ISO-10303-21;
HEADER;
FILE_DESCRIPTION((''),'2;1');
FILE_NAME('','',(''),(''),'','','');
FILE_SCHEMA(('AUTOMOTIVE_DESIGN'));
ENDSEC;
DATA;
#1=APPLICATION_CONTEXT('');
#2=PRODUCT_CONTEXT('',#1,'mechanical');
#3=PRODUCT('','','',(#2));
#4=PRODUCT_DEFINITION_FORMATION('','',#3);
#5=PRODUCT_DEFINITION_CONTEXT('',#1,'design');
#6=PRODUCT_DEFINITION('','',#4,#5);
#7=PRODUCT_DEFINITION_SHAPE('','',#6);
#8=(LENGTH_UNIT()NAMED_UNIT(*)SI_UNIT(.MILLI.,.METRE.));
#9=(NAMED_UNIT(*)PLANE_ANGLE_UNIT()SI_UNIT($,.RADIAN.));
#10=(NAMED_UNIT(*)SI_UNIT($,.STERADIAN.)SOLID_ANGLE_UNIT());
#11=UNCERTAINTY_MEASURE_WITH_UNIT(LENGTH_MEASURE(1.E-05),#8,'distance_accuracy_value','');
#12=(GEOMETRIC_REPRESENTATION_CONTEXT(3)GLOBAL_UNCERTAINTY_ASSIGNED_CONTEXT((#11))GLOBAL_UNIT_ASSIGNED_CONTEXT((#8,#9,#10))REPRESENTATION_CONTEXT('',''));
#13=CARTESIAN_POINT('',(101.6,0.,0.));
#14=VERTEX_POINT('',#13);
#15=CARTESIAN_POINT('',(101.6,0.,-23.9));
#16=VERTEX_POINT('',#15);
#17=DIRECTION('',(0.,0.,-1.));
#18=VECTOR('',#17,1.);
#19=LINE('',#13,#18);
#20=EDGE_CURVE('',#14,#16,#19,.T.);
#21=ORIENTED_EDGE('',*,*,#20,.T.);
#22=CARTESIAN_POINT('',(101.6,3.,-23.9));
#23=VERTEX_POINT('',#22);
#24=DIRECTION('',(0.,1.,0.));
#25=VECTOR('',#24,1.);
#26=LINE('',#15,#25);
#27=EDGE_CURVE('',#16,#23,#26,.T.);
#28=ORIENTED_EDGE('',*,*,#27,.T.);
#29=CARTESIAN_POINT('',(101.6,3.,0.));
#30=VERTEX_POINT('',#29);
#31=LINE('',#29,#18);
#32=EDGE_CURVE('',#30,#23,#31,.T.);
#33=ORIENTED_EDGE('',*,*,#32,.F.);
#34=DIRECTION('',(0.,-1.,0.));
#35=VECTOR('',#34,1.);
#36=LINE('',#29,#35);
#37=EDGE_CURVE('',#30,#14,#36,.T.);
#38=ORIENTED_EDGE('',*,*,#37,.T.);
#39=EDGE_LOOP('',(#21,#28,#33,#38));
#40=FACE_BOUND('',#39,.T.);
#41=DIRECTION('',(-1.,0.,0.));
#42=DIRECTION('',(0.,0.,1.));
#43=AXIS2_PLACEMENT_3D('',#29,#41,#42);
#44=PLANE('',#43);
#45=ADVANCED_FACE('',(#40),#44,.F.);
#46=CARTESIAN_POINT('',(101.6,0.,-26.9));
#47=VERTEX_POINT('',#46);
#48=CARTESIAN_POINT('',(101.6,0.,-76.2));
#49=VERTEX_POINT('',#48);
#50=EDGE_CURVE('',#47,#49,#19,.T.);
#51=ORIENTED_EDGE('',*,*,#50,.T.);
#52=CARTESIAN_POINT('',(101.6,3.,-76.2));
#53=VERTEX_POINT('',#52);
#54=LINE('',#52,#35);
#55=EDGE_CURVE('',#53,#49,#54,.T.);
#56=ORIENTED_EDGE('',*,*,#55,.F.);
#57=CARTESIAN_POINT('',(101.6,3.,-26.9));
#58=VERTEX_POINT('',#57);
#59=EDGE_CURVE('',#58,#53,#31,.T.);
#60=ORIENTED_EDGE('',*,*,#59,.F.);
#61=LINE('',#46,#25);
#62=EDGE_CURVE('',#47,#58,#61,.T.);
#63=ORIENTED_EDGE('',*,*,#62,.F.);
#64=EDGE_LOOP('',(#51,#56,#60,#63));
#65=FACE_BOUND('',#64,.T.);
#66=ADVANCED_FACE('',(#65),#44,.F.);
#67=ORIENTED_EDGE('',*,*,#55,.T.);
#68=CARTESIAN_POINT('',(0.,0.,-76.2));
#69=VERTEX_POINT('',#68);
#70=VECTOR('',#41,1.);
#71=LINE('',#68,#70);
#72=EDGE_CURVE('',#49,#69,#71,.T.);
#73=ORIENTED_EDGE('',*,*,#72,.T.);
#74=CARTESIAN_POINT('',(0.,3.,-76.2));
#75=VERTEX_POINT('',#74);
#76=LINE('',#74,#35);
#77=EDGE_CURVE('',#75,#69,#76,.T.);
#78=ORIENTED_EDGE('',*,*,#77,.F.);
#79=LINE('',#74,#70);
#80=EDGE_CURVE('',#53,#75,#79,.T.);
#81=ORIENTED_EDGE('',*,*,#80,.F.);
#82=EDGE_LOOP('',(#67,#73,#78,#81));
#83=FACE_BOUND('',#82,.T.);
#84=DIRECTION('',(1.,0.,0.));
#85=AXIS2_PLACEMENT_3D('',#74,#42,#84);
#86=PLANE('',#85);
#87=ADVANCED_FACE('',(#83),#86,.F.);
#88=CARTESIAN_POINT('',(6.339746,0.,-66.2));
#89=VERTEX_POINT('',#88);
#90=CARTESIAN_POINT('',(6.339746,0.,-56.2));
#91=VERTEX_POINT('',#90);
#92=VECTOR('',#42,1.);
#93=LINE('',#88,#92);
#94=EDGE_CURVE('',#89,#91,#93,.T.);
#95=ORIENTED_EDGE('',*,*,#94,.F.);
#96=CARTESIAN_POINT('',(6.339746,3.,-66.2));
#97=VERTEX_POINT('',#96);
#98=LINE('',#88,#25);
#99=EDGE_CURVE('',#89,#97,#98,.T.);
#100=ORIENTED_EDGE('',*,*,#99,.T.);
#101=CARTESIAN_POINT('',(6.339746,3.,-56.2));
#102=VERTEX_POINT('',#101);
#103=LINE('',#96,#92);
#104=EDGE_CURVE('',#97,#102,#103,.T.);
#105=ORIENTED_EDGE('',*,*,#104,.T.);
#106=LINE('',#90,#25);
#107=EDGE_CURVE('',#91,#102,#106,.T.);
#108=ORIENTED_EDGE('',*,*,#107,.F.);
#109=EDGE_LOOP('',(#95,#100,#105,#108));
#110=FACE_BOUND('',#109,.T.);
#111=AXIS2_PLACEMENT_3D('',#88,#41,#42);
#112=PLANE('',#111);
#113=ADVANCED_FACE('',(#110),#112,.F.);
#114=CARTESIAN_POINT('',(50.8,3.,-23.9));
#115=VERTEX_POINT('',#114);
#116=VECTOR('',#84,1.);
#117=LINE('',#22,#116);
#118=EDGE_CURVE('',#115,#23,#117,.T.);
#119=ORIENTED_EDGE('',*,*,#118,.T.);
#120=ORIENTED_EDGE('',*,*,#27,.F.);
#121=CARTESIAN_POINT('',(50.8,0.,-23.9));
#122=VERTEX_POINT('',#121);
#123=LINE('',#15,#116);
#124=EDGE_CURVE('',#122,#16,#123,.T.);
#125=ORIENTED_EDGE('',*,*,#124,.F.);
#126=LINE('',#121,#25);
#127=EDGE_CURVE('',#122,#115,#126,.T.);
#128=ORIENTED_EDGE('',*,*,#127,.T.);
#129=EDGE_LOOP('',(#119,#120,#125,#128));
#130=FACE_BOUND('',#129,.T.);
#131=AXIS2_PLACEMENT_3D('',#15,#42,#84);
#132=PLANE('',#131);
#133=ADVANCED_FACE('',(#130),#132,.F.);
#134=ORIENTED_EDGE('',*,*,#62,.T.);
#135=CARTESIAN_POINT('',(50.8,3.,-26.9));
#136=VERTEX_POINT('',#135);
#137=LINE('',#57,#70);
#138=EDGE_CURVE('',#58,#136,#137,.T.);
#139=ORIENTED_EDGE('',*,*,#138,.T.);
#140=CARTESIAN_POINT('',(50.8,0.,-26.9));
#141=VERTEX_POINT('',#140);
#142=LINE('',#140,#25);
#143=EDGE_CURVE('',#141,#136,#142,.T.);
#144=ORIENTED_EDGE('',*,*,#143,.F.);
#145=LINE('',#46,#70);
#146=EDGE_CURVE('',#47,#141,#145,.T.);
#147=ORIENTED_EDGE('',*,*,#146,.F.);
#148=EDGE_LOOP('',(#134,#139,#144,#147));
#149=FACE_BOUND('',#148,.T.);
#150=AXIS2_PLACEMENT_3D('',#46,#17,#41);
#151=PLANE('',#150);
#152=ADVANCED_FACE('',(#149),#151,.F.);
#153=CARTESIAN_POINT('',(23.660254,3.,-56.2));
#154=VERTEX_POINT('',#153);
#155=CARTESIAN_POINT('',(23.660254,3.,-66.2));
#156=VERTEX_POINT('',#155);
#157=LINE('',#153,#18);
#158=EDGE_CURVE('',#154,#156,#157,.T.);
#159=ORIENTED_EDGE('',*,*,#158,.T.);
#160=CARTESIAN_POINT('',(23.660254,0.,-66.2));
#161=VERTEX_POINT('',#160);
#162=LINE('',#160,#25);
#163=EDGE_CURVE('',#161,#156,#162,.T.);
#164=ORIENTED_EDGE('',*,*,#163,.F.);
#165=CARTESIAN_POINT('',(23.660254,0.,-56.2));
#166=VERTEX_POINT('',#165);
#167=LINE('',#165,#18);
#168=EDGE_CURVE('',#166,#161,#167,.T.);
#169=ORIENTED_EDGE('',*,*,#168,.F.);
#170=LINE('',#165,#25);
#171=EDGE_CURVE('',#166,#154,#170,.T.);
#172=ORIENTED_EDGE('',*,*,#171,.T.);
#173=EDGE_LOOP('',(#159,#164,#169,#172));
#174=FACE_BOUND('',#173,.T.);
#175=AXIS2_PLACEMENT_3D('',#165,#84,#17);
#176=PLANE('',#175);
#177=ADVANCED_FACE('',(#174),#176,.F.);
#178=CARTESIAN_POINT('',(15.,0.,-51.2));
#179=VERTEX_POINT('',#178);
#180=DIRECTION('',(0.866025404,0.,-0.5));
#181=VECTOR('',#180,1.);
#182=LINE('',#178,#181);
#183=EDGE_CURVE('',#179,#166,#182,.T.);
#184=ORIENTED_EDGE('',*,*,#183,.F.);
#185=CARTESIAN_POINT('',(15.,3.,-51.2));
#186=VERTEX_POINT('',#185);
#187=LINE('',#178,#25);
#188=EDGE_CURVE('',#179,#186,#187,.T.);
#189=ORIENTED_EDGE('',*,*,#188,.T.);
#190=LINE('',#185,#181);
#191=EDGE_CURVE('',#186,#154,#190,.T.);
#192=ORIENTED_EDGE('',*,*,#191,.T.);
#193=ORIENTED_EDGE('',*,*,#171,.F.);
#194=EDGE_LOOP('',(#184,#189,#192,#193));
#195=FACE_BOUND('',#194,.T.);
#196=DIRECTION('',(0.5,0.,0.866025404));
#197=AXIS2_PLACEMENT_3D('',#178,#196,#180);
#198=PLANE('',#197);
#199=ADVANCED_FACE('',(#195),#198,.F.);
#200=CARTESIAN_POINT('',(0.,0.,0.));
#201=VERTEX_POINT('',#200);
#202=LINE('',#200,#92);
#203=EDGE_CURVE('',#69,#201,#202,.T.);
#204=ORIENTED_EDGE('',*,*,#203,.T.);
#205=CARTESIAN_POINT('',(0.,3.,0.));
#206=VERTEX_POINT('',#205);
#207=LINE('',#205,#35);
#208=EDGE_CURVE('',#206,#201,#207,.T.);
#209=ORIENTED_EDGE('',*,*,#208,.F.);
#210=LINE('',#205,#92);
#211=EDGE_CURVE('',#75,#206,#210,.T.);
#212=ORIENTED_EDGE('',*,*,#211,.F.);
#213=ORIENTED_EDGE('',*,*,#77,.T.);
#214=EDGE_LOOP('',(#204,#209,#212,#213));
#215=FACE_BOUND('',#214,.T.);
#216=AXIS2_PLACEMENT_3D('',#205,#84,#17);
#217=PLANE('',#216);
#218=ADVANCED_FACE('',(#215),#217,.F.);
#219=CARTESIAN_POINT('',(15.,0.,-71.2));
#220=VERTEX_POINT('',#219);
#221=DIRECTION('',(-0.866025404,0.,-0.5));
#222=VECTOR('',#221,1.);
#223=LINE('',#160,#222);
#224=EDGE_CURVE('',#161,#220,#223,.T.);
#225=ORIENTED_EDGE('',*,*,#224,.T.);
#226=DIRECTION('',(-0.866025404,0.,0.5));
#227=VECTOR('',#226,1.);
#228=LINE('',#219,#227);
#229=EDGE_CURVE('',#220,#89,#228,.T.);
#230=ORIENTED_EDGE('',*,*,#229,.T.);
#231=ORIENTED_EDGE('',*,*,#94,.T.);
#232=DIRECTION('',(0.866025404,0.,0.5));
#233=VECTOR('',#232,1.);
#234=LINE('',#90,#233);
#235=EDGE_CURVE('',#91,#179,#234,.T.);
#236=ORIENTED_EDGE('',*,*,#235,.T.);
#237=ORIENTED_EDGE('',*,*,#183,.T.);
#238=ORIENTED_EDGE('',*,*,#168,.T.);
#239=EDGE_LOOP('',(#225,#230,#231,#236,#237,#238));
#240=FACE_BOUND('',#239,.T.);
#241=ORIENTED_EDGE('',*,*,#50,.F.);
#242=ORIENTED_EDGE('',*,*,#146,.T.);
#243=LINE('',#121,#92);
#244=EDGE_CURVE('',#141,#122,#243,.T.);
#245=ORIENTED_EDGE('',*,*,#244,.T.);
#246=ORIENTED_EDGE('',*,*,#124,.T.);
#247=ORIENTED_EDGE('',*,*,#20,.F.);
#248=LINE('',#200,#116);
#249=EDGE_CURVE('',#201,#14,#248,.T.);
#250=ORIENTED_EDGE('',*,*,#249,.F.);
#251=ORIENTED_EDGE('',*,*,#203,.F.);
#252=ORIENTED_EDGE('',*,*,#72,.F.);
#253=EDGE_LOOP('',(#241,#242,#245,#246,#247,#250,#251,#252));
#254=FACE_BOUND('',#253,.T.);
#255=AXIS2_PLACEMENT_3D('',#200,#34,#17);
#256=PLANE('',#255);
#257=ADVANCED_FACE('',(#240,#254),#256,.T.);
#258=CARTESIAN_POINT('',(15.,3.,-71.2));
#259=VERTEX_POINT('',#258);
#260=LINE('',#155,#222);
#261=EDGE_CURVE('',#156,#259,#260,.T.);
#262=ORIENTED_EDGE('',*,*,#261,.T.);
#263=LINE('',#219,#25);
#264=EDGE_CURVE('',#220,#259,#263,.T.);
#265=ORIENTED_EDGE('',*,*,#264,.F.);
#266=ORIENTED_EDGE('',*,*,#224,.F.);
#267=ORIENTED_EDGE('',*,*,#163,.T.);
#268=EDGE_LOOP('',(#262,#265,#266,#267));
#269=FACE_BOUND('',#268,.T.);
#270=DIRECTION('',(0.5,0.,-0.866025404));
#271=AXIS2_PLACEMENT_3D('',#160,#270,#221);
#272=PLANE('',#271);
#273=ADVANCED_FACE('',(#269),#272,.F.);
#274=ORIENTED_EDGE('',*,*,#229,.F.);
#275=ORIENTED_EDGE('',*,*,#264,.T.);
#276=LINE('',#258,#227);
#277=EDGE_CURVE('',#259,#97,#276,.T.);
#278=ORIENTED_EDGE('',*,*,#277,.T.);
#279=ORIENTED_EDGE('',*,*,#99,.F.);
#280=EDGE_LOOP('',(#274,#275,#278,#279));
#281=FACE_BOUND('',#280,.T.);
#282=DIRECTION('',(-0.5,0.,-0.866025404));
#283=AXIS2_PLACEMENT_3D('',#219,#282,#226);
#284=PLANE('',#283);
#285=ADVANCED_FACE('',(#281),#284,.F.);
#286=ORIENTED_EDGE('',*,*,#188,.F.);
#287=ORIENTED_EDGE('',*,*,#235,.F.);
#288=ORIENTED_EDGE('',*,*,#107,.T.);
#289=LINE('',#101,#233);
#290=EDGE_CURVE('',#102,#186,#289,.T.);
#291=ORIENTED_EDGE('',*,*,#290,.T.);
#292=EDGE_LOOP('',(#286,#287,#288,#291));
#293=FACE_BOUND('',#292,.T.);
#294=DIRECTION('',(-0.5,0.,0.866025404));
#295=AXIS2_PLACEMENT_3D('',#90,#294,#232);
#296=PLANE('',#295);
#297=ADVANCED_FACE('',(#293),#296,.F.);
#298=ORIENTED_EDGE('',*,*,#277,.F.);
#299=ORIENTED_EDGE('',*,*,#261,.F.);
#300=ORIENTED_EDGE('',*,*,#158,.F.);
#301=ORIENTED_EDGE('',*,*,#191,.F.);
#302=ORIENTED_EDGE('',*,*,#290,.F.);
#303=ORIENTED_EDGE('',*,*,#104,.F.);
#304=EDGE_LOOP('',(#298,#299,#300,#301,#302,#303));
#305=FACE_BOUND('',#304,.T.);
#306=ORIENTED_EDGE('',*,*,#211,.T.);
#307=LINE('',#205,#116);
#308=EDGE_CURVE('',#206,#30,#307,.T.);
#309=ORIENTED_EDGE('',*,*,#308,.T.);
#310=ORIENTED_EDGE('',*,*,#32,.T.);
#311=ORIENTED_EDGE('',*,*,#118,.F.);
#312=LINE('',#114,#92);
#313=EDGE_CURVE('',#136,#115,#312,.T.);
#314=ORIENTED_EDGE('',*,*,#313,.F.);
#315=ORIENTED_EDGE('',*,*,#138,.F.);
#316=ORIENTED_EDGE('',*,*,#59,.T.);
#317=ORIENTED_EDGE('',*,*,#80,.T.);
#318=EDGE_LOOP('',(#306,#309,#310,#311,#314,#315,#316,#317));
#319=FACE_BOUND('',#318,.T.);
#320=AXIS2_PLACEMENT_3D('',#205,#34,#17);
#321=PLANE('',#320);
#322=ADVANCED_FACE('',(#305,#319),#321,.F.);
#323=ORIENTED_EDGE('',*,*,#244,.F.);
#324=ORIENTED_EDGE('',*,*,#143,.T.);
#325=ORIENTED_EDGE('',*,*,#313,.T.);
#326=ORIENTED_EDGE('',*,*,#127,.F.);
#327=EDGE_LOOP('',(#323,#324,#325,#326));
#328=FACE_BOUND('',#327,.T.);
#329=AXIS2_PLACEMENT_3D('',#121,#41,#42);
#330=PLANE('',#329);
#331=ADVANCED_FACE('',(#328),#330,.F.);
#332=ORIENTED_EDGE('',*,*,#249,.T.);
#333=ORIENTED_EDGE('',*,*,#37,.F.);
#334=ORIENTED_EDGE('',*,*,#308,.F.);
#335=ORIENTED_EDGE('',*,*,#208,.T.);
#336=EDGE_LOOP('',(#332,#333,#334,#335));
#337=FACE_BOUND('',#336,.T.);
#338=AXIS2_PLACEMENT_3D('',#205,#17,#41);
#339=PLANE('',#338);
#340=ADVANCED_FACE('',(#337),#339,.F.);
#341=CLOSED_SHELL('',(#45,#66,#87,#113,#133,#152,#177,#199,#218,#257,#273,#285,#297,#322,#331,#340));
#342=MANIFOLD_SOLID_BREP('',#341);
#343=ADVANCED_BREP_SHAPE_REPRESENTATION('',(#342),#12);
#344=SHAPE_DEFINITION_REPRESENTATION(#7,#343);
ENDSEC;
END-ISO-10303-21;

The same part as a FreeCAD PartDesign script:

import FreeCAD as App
import Part
import Sketcher

V = App.Vector
Q = App.Units.Quantity


def add_polygon(sketch, points):
    """Adds a closed chain of lines whose ends are joined by coincident constraints."""
    first, n = sketch.GeometryCount, len(points)
    for a, b in zip(points, points[1:] + points[:1]):
        sketch.addGeometry(Part.LineSegment(App.Vector(*a, 0), App.Vector(*b, 0)), False)
    for i in range(n):
        sketch.addConstraint(Sketcher.Constraint("Coincident", first + i, 2, first + (i + 1) % n, 1))

doc = App.newDocument("Part")
params = doc.addObject("Spreadsheet::Sheet", "Params")
for row, (alias, value) in enumerate([
    ("sketch1_width", "4 in"),
    ("sketch1_height", "3 in"),
    ("pad1_length", "3 mm"),
    ("sketch2_width", "2 in"),
    ("pocket1_length", "3 mm"),
    ("pocket2_length", "3 mm"),
], start=1):
    params.set(f"A{row}", alias)
    params.set(f"B{row}", "=" + value)
    params.setAlias(f"B{row}", alias)

body = doc.addObject("PartDesign::Body", "Body")

# Sketch on XZ plane
sketch1 = body.newObject("Sketcher::SketchObject", "Sketch")
sketch1.AttachmentSupport = (doc.getObject("XZ_Plane"), [""])
sketch1.MapMode = "FlatFace"
add_polygon(sketch1, [(0, -76), (0, 0), (102, 0), (102, -76)])  # lines 0-3
sketch1.addConstraint([
    Sketcher.Constraint("Vertical", 0),
    Sketcher.Constraint("Horizontal", 1),
    Sketcher.Constraint("Vertical", 2),
    Sketcher.Constraint("Horizontal", 3),
    Sketcher.Constraint("Coincident", 0, 2, -1, 1),
    Sketcher.Constraint("DistanceX", 1, 1, 1, 2, Q("4 in")),
    Sketcher.Constraint("DistanceY", 0, 1, 0, 2, Q("3 in")),
])
sketch1.setExpression("Constraints[9]", "Params.sketch1_width")
sketch1.setExpression("Constraints[10]", "Params.sketch1_height")
pad1 = body.newObject("PartDesign::Pad", "Pad")
pad1.Profile = sketch1
pad1.setExpression("Length", "Params.pad1_length")
pad1.Reversed = True

# Sketch on XZ plane
sketch2 = body.newObject("Sketcher::SketchObject", "Sketch001")
sketch2.AttachmentSupport = (doc.getObject("XZ_Plane"), [""])
sketch2.MapMode = "FlatFace"
sketch2.AttachmentOffset = App.Placement(V(0, 0, -3), App.Rotation())
add_polygon(sketch2, [(50.8, -26.9), (50.8, -23.9), (101.6, -23.9), (101.6, -26.9)])  # lines 0-3
sketch2.addConstraint([
    Sketcher.Constraint("Vertical", 0),
    Sketcher.Constraint("Horizontal", 1),
    Sketcher.Constraint("Vertical", 2),
    Sketcher.Constraint("Horizontal", 3),
    Sketcher.Constraint("DistanceX", 1, 1, 1, 2, Q("2 in")),
    Sketcher.Constraint("DistanceX", -1, 1, 0, 2, Q("2 in")),
    Sketcher.Constraint("DistanceY", 0, 1, 0, 2, 3.0),
    Sketcher.Constraint("DistanceY", 0, 2, -1, 1, 23.9),
])
sketch2.setExpression("Constraints[8]", "Params.sketch2_width")
pocket1 = body.newObject("PartDesign::Pocket", "Pocket")
pocket1.Profile = sketch2
pocket1.setExpression("Length", "Params.pocket1_length")
pocket1.Reversed = True

# Sketch on XZ plane
sketch3 = body.newObject("Sketcher::SketchObject", "Sketch002")
sketch3.AttachmentSupport = (doc.getObject("XZ_Plane"), [""])
sketch3.MapMode = "FlatFace"
sketch3.AttachmentOffset = App.Placement(V(0, 0, -3), App.Rotation())
add_polygon(sketch3, [(15, -51), (24, -56), (24, -66), (15, -71), (6, -66), (6, -56)])  # lines 0-5
sketch3.addConstraint([
    Sketcher.Constraint("Vertical", 1),
    Sketcher.Constraint("Vertical", 4),
    Sketcher.Constraint("Parallel", 0, 3),
    Sketcher.Constraint("Parallel", 2, 5),
    Sketcher.Constraint("Horizontal", 1, 2, 3, 2),
    Sketcher.Constraint("Horizontal", 0, 2, 4, 2),
    Sketcher.Constraint("Vertical", 2, 2, 5, 2),
    Sketcher.Constraint("Angle", 0, Q("-30 deg")),
    Sketcher.Constraint("DistanceY", 1, 2, 1, 1, 10.0),
    Sketcher.Constraint("Distance", 0, 10.0),
    Sketcher.Constraint("DistanceY", 0, 2, -1, 1, 56.2),
    Sketcher.Constraint("DistanceX", -1, 1, 2, 2, 15.0),
])
pocket2 = body.newObject("PartDesign::Pocket", "Pocket001")
pocket2.Profile = sketch3
pocket2.setExpression("Length", "Params.pocket2_length")
pocket2.Reversed = True

doc.recompute()
